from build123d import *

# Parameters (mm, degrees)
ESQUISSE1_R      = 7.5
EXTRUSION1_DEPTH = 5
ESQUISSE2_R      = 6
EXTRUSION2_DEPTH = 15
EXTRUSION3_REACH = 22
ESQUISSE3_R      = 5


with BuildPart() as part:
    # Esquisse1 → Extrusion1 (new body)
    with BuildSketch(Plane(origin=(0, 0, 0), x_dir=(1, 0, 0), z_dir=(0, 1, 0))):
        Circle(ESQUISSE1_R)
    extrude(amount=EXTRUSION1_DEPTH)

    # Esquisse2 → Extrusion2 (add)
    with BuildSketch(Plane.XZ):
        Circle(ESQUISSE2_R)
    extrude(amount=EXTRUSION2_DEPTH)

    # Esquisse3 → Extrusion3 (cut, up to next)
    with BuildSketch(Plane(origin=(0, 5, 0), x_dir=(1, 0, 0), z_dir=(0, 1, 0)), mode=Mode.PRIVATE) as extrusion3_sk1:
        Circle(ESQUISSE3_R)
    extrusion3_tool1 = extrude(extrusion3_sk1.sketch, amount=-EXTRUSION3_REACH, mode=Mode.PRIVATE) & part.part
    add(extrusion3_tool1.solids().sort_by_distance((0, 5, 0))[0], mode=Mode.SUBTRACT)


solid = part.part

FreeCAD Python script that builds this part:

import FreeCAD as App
import Part
import Sketcher
from FreeCAD import Vector
Q = App.Units.Quantity

doc = App.newDocument("Part")
body = doc.addObject("PartDesign::Body", "Body")

# Sketch on XZ plane
sketch1 = body.newObject("Sketcher::SketchObject", "Sketch")
sketch1.AttachmentSupport = (doc.getObject("XZ_Plane"), [""])
sketch1.MapMode = "FlatFace"
sketch1.addGeometry(Part.Circle(Vector(0, 0, 0), Vector(0, 0, 1), 8), False)
sketch1.addConstraint(Sketcher.Constraint("Coincident", 0, 3, -1, 1))
sketch1.addConstraint(Sketcher.Constraint("Diameter", 0, Q("15 mm")))
pad1 = body.newObject("PartDesign::Pad", "Pad")
pad1.Profile = sketch1
pad1.Length = 5
pad1.Reversed = True

# Sketch on XZ plane
sketch2 = body.newObject("Sketcher::SketchObject", "Sketch001")
sketch2.AttachmentSupport = (doc.getObject("XZ_Plane"), [""])
sketch2.MapMode = "FlatFace"
sketch2.addGeometry(Part.Circle(Vector(0, 0, 0), Vector(0, 0, 1), 6), False)
sketch2.addConstraint(Sketcher.Constraint("Coincident", 0, 3, -1, 1))
sketch2.addConstraint(Sketcher.Constraint("Diameter", 0, Q("12 mm")))
pad2 = body.newObject("PartDesign::Pad", "Pad001")
pad2.Profile = sketch2
pad2.Length = 15

# Sketch on XZ plane
sketch3 = body.newObject("Sketcher::SketchObject", "Sketch002")
sketch3.AttachmentSupport = (doc.getObject("XZ_Plane"), [""])
sketch3.MapMode = "FlatFace"
sketch3.AttachmentOffset = App.Placement(Vector(0, 0, -5), App.Rotation())
sketch3.addGeometry(Part.Circle(Vector(0, 0, 0), Vector(0, 0, 1), 5), False)
sketch3.addConstraint(Sketcher.Constraint("Coincident", 0, 3, -1, 1))
sketch3.addConstraint(Sketcher.Constraint("Diameter", 0, Q("10 mm")))
pocket1 = body.newObject("PartDesign::Pocket", "Pocket")
pocket1.Profile = sketch3
pocket1.Type = "UpToFirst"
pocket1.Reversed = True

doc.recompute()
